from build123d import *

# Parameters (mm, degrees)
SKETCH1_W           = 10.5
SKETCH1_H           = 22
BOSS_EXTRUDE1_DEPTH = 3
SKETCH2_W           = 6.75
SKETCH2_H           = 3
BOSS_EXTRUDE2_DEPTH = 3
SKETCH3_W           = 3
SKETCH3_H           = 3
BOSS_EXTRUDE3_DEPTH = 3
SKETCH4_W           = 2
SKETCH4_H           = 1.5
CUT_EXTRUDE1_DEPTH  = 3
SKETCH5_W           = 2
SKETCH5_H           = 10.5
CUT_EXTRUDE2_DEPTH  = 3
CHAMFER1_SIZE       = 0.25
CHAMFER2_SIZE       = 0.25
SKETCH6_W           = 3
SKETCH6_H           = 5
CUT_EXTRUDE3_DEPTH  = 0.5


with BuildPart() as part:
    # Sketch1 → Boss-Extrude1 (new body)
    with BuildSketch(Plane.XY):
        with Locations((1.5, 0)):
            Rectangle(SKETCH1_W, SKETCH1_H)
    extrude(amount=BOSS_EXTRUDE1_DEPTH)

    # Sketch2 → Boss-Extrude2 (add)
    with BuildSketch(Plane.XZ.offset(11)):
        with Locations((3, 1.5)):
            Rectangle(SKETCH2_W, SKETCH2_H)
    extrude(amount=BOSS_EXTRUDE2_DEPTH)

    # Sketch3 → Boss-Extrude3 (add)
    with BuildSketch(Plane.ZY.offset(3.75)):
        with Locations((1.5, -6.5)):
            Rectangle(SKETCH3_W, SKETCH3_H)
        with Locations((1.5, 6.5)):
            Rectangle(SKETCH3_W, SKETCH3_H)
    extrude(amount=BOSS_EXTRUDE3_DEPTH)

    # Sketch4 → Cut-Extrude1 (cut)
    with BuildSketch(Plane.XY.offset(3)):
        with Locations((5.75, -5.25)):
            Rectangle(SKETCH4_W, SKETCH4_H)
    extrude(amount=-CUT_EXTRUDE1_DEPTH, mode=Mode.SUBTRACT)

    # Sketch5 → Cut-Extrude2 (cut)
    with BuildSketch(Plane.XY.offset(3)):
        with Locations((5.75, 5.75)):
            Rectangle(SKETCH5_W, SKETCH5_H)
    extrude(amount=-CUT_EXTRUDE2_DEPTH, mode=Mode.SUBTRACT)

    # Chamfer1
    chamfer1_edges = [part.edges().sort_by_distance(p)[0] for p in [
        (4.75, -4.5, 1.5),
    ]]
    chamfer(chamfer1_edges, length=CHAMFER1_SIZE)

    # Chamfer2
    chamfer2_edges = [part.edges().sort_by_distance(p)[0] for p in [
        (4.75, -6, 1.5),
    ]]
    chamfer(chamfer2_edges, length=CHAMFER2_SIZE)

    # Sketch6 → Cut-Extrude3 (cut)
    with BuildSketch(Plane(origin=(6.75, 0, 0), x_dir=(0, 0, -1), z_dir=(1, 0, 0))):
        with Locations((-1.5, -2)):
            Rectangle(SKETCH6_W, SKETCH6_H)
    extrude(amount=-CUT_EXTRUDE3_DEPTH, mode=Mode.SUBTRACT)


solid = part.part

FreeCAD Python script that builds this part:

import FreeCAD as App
import Part
import Sketcher

V = App.Vector
Q = App.Units.Quantity


def edges_at(feature, points):
    """Names of the edges that pass closest to the given points."""
    edges = feature.Shape.Edges
    near = lambda p: min(range(len(edges)), key=lambda i: edges[i].distToShape(Part.Vertex(*p))[0])
    return sorted({f"Edge{near(p) + 1}" for p in points})


def add_polygon(sketch, points):
    """Adds a closed chain of lines whose ends are joined by coincident constraints."""
    first, n = sketch.GeometryCount, len(points)
    for a, b in zip(points, points[1:] + points[:1]):
        sketch.addGeometry(Part.LineSegment(App.Vector(*a, 0), App.Vector(*b, 0)), False)
    for i in range(n):
        sketch.addConstraint(Sketcher.Constraint("Coincident", first + i, 2, first + (i + 1) % n, 1))

doc = App.newDocument("Part")
body = doc.addObject("PartDesign::Body", "Body")

# Sketch on XY plane
sketch1 = body.newObject("Sketcher::SketchObject", "Sketch")
sketch1.AttachmentSupport = (doc.getObject("XY_Plane"), [""])
sketch1.MapMode = "FlatFace"
add_polygon(sketch1, [(-4, 11), (-4, -11), (7, -11), (7, 11)])  # lines 0-3
sketch1.addConstraint([
    Sketcher.Constraint("Vertical", 0),
    Sketcher.Constraint("Horizontal", 1),
    Sketcher.Constraint("Vertical", 2),
    Sketcher.Constraint("Horizontal", 3),
    Sketcher.Constraint("DistanceY", 0, 2, 0, 1, Q("22 mm")),
    Sketcher.Constraint("DistanceX", 1, 1, 1, 2, Q("10.5 mm")),
    Sketcher.Constraint("DistanceY", 0, 2, -1, 1, Q("11 mm")),
    Sketcher.Constraint("DistanceX", 0, 2, -1, 1, Q("3.75 mm")),
])
pad1 = body.newObject("PartDesign::Pad", "Pad")
pad1.Profile = sketch1
pad1.Length = 3

# Sketch on XZ plane
sketch2 = body.newObject("Sketcher::SketchObject", "Sketch001")
sketch2.AttachmentSupport = (doc.getObject("XZ_Plane"), [""])
sketch2.MapMode = "FlatFace"
sketch2.AttachmentOffset = App.Placement(V(0, 0, 11), App.Rotation())
add_polygon(sketch2, [(-0.4, 3), (-0.4, 0), (6.4, 0), (6.4, 3)])  # lines 0-3
sketch2.addConstraint([
    Sketcher.Constraint("Vertical", 0),
    Sketcher.Constraint("Horizontal", 1),
    Sketcher.Constraint("Vertical", 2),
    Sketcher.Constraint("Horizontal", 3),
    Sketcher.Constraint("PointOnObject", 0, 2, -1),
    Sketcher.Constraint("DistanceY", 0, 2, 0, 1, Q("3 mm")),
    Sketcher.Constraint("DistanceX", 1, 1, 1, 2, Q("6.75 mm")),
    Sketcher.Constraint("DistanceX", 0, 2, -1, 1, Q("0.375 mm")),
])
pad2 = body.newObject("PartDesign::Pad", "Pad001")
pad2.Profile = sketch2
pad2.Length = 3

# Sketch on YZ plane
sketch3 = body.newObject("Sketcher::SketchObject", "Sketch002")
sketch3.AttachmentSupport = (doc.getObject("YZ_Plane"), [""])
sketch3.MapMode = "FlatFace"
sketch3.AttachmentOffset = App.Placement(V(0, 0, -3.75), App.Rotation())
add_polygon(sketch3, [(-5, 0), (-8, 0), (-8, 3), (-5, 3)])  # lines 0-3
add_polygon(sketch3, [(8, 0), (5, 0), (5, 3), (8, 3)])  # lines 4-7
sketch3.addConstraint([
    Sketcher.Constraint("Horizontal", 0),
    Sketcher.Constraint("Vertical", 1),
    Sketcher.Constraint("Horizontal", 2),
    Sketcher.Constraint("Vertical", 3),
    Sketcher.Constraint("Horizontal", 4),
    Sketcher.Constraint("Vertical", 5),
    Sketcher.Constraint("Horizontal", 6),
    Sketcher.Constraint("Vertical", 7),
    Sketcher.Constraint("Symmetric", 3, 2, 4, 2, -1, 1),
    Sketcher.Constraint("Symmetric", 1, 2, 6, 2, -2),
    Sketcher.Constraint("PointOnObject", 0, 2, -1),
    Sketcher.Constraint("Equal", 6, 1),
    Sketcher.Constraint("DistanceX", 0, 2, 0, 1, Q("3 mm")),
    Sketcher.Constraint("DistanceX", 0, 2, -1, 1, Q("8 mm")),
])
pad3 = body.newObject("PartDesign::Pad", "Pad002")
pad3.Profile = sketch3
pad3.Length = 3
pad3.Reversed = True

# Sketch on XY plane
sketch4 = body.newObject("Sketcher::SketchObject", "Sketch003")
sketch4.AttachmentSupport = (doc.getObject("XY_Plane"), [""])
sketch4.MapMode = "FlatFace"
sketch4.AttachmentOffset = App.Placement(V(0, 0, 3), App.Rotation())
add_polygon(sketch4, [(4.8, -4.5), (4.8, -6), (6.8, -6), (6.8, -4.5)])  # lines 0-3
sketch4.addConstraint([
    Sketcher.Constraint("Vertical", 0),
    Sketcher.Constraint("Horizontal", 1),
    Sketcher.Constraint("Vertical", 2),
    Sketcher.Constraint("Horizontal", 3),
    Sketcher.Constraint("DistanceX", 1, 1, 1, 2, Q("2 mm")),
    Sketcher.Constraint("DistanceY", 0, 2, 0, 1, Q("1.5 mm")),
    Sketcher.Constraint("DistanceY", 0, 2, -1, 1, Q("6 mm")),
    Sketcher.Constraint("DistanceX", -1, 1, 0, 2, Q("4.75 mm")),
])
pocket1 = body.newObject("PartDesign::Pocket", "Pocket")
pocket1.Profile = sketch4
pocket1.Length = 3

# Sketch on XY plane
sketch5 = body.newObject("Sketcher::SketchObject", "Sketch004")
sketch5.AttachmentSupport = (doc.getObject("XY_Plane"), [""])
sketch5.MapMode = "FlatFace"
sketch5.AttachmentOffset = App.Placement(V(0, 0, 3), App.Rotation())
add_polygon(sketch5, [(4.8, 11), (4.8, 0.5), (6.8, 0.5), (6.8, 11)])  # lines 0-3
sketch5.addConstraint([
    Sketcher.Constraint("Vertical", 0),
    Sketcher.Constraint("Horizontal", 1),
    Sketcher.Constraint("Vertical", 2),
    Sketcher.Constraint("Horizontal", 3),
    Sketcher.Constraint("DistanceX", 1, 1, 1, 2, Q("2 mm")),
    Sketcher.Constraint("DistanceY", 0, 2, 0, 1, Q("10.5 mm")),
    Sketcher.Constraint("DistanceY", -1, 1, 2, 2, Q("11 mm")),
    Sketcher.Constraint("DistanceX", -1, 1, 0, 2, Q("4.75 mm")),
])
pocket2 = body.newObject("PartDesign::Pocket", "Pocket001")
pocket2.Profile = sketch5
pocket2.Length = 3
doc.recompute()

chamfer = body.newObject("PartDesign::Chamfer", "Chamfer")
chamfer.Base = (pocket2, edges_at(pocket2, [(4.75, -4.5, 1.5)]))
chamfer.Size = 0.25
doc.recompute()

chamfer2 = body.newObject("PartDesign::Chamfer", "Chamfer001")
chamfer2.Base = (chamfer, edges_at(chamfer, [(4.75, -6, 1.5)]))
chamfer2.Size = 0.25

# Sketch on YZ plane
sketch6 = body.newObject("Sketcher::SketchObject", "Sketch005")
sketch6.AttachmentSupport = (doc.getObject("YZ_Plane"), [""])
sketch6.MapMode = "FlatFace"
sketch6.AttachmentOffset = App.Placement(V(0, 0, 6.75), App.Rotation())
add_polygon(sketch6, [(0.5, 3), (-4.5, 3), (-4.5, 0), (0.5, 0)])  # lines 0-3
sketch6.addConstraint([
    Sketcher.Constraint("Horizontal", 0),
    Sketcher.Constraint("Vertical", 1),
    Sketcher.Constraint("Horizontal", 2),
    Sketcher.Constraint("Vertical", 3),
    Sketcher.Constraint("PointOnObject", 1, 2, -1),
    Sketcher.Constraint("DistanceX", 0, 2, 0, 1, Q("5 mm")),
    Sketcher.Constraint("DistanceY", 1, 2, 1, 1, Q("3 mm")),
    Sketcher.Constraint("DistanceX", 0, 2, -1, 1, Q("4.5 mm")),
])
pocket3 = body.newObject("PartDesign::Pocket", "Pocket002")
pocket3.Profile = sketch6
pocket3.Length = 0.5

doc.recompute()
